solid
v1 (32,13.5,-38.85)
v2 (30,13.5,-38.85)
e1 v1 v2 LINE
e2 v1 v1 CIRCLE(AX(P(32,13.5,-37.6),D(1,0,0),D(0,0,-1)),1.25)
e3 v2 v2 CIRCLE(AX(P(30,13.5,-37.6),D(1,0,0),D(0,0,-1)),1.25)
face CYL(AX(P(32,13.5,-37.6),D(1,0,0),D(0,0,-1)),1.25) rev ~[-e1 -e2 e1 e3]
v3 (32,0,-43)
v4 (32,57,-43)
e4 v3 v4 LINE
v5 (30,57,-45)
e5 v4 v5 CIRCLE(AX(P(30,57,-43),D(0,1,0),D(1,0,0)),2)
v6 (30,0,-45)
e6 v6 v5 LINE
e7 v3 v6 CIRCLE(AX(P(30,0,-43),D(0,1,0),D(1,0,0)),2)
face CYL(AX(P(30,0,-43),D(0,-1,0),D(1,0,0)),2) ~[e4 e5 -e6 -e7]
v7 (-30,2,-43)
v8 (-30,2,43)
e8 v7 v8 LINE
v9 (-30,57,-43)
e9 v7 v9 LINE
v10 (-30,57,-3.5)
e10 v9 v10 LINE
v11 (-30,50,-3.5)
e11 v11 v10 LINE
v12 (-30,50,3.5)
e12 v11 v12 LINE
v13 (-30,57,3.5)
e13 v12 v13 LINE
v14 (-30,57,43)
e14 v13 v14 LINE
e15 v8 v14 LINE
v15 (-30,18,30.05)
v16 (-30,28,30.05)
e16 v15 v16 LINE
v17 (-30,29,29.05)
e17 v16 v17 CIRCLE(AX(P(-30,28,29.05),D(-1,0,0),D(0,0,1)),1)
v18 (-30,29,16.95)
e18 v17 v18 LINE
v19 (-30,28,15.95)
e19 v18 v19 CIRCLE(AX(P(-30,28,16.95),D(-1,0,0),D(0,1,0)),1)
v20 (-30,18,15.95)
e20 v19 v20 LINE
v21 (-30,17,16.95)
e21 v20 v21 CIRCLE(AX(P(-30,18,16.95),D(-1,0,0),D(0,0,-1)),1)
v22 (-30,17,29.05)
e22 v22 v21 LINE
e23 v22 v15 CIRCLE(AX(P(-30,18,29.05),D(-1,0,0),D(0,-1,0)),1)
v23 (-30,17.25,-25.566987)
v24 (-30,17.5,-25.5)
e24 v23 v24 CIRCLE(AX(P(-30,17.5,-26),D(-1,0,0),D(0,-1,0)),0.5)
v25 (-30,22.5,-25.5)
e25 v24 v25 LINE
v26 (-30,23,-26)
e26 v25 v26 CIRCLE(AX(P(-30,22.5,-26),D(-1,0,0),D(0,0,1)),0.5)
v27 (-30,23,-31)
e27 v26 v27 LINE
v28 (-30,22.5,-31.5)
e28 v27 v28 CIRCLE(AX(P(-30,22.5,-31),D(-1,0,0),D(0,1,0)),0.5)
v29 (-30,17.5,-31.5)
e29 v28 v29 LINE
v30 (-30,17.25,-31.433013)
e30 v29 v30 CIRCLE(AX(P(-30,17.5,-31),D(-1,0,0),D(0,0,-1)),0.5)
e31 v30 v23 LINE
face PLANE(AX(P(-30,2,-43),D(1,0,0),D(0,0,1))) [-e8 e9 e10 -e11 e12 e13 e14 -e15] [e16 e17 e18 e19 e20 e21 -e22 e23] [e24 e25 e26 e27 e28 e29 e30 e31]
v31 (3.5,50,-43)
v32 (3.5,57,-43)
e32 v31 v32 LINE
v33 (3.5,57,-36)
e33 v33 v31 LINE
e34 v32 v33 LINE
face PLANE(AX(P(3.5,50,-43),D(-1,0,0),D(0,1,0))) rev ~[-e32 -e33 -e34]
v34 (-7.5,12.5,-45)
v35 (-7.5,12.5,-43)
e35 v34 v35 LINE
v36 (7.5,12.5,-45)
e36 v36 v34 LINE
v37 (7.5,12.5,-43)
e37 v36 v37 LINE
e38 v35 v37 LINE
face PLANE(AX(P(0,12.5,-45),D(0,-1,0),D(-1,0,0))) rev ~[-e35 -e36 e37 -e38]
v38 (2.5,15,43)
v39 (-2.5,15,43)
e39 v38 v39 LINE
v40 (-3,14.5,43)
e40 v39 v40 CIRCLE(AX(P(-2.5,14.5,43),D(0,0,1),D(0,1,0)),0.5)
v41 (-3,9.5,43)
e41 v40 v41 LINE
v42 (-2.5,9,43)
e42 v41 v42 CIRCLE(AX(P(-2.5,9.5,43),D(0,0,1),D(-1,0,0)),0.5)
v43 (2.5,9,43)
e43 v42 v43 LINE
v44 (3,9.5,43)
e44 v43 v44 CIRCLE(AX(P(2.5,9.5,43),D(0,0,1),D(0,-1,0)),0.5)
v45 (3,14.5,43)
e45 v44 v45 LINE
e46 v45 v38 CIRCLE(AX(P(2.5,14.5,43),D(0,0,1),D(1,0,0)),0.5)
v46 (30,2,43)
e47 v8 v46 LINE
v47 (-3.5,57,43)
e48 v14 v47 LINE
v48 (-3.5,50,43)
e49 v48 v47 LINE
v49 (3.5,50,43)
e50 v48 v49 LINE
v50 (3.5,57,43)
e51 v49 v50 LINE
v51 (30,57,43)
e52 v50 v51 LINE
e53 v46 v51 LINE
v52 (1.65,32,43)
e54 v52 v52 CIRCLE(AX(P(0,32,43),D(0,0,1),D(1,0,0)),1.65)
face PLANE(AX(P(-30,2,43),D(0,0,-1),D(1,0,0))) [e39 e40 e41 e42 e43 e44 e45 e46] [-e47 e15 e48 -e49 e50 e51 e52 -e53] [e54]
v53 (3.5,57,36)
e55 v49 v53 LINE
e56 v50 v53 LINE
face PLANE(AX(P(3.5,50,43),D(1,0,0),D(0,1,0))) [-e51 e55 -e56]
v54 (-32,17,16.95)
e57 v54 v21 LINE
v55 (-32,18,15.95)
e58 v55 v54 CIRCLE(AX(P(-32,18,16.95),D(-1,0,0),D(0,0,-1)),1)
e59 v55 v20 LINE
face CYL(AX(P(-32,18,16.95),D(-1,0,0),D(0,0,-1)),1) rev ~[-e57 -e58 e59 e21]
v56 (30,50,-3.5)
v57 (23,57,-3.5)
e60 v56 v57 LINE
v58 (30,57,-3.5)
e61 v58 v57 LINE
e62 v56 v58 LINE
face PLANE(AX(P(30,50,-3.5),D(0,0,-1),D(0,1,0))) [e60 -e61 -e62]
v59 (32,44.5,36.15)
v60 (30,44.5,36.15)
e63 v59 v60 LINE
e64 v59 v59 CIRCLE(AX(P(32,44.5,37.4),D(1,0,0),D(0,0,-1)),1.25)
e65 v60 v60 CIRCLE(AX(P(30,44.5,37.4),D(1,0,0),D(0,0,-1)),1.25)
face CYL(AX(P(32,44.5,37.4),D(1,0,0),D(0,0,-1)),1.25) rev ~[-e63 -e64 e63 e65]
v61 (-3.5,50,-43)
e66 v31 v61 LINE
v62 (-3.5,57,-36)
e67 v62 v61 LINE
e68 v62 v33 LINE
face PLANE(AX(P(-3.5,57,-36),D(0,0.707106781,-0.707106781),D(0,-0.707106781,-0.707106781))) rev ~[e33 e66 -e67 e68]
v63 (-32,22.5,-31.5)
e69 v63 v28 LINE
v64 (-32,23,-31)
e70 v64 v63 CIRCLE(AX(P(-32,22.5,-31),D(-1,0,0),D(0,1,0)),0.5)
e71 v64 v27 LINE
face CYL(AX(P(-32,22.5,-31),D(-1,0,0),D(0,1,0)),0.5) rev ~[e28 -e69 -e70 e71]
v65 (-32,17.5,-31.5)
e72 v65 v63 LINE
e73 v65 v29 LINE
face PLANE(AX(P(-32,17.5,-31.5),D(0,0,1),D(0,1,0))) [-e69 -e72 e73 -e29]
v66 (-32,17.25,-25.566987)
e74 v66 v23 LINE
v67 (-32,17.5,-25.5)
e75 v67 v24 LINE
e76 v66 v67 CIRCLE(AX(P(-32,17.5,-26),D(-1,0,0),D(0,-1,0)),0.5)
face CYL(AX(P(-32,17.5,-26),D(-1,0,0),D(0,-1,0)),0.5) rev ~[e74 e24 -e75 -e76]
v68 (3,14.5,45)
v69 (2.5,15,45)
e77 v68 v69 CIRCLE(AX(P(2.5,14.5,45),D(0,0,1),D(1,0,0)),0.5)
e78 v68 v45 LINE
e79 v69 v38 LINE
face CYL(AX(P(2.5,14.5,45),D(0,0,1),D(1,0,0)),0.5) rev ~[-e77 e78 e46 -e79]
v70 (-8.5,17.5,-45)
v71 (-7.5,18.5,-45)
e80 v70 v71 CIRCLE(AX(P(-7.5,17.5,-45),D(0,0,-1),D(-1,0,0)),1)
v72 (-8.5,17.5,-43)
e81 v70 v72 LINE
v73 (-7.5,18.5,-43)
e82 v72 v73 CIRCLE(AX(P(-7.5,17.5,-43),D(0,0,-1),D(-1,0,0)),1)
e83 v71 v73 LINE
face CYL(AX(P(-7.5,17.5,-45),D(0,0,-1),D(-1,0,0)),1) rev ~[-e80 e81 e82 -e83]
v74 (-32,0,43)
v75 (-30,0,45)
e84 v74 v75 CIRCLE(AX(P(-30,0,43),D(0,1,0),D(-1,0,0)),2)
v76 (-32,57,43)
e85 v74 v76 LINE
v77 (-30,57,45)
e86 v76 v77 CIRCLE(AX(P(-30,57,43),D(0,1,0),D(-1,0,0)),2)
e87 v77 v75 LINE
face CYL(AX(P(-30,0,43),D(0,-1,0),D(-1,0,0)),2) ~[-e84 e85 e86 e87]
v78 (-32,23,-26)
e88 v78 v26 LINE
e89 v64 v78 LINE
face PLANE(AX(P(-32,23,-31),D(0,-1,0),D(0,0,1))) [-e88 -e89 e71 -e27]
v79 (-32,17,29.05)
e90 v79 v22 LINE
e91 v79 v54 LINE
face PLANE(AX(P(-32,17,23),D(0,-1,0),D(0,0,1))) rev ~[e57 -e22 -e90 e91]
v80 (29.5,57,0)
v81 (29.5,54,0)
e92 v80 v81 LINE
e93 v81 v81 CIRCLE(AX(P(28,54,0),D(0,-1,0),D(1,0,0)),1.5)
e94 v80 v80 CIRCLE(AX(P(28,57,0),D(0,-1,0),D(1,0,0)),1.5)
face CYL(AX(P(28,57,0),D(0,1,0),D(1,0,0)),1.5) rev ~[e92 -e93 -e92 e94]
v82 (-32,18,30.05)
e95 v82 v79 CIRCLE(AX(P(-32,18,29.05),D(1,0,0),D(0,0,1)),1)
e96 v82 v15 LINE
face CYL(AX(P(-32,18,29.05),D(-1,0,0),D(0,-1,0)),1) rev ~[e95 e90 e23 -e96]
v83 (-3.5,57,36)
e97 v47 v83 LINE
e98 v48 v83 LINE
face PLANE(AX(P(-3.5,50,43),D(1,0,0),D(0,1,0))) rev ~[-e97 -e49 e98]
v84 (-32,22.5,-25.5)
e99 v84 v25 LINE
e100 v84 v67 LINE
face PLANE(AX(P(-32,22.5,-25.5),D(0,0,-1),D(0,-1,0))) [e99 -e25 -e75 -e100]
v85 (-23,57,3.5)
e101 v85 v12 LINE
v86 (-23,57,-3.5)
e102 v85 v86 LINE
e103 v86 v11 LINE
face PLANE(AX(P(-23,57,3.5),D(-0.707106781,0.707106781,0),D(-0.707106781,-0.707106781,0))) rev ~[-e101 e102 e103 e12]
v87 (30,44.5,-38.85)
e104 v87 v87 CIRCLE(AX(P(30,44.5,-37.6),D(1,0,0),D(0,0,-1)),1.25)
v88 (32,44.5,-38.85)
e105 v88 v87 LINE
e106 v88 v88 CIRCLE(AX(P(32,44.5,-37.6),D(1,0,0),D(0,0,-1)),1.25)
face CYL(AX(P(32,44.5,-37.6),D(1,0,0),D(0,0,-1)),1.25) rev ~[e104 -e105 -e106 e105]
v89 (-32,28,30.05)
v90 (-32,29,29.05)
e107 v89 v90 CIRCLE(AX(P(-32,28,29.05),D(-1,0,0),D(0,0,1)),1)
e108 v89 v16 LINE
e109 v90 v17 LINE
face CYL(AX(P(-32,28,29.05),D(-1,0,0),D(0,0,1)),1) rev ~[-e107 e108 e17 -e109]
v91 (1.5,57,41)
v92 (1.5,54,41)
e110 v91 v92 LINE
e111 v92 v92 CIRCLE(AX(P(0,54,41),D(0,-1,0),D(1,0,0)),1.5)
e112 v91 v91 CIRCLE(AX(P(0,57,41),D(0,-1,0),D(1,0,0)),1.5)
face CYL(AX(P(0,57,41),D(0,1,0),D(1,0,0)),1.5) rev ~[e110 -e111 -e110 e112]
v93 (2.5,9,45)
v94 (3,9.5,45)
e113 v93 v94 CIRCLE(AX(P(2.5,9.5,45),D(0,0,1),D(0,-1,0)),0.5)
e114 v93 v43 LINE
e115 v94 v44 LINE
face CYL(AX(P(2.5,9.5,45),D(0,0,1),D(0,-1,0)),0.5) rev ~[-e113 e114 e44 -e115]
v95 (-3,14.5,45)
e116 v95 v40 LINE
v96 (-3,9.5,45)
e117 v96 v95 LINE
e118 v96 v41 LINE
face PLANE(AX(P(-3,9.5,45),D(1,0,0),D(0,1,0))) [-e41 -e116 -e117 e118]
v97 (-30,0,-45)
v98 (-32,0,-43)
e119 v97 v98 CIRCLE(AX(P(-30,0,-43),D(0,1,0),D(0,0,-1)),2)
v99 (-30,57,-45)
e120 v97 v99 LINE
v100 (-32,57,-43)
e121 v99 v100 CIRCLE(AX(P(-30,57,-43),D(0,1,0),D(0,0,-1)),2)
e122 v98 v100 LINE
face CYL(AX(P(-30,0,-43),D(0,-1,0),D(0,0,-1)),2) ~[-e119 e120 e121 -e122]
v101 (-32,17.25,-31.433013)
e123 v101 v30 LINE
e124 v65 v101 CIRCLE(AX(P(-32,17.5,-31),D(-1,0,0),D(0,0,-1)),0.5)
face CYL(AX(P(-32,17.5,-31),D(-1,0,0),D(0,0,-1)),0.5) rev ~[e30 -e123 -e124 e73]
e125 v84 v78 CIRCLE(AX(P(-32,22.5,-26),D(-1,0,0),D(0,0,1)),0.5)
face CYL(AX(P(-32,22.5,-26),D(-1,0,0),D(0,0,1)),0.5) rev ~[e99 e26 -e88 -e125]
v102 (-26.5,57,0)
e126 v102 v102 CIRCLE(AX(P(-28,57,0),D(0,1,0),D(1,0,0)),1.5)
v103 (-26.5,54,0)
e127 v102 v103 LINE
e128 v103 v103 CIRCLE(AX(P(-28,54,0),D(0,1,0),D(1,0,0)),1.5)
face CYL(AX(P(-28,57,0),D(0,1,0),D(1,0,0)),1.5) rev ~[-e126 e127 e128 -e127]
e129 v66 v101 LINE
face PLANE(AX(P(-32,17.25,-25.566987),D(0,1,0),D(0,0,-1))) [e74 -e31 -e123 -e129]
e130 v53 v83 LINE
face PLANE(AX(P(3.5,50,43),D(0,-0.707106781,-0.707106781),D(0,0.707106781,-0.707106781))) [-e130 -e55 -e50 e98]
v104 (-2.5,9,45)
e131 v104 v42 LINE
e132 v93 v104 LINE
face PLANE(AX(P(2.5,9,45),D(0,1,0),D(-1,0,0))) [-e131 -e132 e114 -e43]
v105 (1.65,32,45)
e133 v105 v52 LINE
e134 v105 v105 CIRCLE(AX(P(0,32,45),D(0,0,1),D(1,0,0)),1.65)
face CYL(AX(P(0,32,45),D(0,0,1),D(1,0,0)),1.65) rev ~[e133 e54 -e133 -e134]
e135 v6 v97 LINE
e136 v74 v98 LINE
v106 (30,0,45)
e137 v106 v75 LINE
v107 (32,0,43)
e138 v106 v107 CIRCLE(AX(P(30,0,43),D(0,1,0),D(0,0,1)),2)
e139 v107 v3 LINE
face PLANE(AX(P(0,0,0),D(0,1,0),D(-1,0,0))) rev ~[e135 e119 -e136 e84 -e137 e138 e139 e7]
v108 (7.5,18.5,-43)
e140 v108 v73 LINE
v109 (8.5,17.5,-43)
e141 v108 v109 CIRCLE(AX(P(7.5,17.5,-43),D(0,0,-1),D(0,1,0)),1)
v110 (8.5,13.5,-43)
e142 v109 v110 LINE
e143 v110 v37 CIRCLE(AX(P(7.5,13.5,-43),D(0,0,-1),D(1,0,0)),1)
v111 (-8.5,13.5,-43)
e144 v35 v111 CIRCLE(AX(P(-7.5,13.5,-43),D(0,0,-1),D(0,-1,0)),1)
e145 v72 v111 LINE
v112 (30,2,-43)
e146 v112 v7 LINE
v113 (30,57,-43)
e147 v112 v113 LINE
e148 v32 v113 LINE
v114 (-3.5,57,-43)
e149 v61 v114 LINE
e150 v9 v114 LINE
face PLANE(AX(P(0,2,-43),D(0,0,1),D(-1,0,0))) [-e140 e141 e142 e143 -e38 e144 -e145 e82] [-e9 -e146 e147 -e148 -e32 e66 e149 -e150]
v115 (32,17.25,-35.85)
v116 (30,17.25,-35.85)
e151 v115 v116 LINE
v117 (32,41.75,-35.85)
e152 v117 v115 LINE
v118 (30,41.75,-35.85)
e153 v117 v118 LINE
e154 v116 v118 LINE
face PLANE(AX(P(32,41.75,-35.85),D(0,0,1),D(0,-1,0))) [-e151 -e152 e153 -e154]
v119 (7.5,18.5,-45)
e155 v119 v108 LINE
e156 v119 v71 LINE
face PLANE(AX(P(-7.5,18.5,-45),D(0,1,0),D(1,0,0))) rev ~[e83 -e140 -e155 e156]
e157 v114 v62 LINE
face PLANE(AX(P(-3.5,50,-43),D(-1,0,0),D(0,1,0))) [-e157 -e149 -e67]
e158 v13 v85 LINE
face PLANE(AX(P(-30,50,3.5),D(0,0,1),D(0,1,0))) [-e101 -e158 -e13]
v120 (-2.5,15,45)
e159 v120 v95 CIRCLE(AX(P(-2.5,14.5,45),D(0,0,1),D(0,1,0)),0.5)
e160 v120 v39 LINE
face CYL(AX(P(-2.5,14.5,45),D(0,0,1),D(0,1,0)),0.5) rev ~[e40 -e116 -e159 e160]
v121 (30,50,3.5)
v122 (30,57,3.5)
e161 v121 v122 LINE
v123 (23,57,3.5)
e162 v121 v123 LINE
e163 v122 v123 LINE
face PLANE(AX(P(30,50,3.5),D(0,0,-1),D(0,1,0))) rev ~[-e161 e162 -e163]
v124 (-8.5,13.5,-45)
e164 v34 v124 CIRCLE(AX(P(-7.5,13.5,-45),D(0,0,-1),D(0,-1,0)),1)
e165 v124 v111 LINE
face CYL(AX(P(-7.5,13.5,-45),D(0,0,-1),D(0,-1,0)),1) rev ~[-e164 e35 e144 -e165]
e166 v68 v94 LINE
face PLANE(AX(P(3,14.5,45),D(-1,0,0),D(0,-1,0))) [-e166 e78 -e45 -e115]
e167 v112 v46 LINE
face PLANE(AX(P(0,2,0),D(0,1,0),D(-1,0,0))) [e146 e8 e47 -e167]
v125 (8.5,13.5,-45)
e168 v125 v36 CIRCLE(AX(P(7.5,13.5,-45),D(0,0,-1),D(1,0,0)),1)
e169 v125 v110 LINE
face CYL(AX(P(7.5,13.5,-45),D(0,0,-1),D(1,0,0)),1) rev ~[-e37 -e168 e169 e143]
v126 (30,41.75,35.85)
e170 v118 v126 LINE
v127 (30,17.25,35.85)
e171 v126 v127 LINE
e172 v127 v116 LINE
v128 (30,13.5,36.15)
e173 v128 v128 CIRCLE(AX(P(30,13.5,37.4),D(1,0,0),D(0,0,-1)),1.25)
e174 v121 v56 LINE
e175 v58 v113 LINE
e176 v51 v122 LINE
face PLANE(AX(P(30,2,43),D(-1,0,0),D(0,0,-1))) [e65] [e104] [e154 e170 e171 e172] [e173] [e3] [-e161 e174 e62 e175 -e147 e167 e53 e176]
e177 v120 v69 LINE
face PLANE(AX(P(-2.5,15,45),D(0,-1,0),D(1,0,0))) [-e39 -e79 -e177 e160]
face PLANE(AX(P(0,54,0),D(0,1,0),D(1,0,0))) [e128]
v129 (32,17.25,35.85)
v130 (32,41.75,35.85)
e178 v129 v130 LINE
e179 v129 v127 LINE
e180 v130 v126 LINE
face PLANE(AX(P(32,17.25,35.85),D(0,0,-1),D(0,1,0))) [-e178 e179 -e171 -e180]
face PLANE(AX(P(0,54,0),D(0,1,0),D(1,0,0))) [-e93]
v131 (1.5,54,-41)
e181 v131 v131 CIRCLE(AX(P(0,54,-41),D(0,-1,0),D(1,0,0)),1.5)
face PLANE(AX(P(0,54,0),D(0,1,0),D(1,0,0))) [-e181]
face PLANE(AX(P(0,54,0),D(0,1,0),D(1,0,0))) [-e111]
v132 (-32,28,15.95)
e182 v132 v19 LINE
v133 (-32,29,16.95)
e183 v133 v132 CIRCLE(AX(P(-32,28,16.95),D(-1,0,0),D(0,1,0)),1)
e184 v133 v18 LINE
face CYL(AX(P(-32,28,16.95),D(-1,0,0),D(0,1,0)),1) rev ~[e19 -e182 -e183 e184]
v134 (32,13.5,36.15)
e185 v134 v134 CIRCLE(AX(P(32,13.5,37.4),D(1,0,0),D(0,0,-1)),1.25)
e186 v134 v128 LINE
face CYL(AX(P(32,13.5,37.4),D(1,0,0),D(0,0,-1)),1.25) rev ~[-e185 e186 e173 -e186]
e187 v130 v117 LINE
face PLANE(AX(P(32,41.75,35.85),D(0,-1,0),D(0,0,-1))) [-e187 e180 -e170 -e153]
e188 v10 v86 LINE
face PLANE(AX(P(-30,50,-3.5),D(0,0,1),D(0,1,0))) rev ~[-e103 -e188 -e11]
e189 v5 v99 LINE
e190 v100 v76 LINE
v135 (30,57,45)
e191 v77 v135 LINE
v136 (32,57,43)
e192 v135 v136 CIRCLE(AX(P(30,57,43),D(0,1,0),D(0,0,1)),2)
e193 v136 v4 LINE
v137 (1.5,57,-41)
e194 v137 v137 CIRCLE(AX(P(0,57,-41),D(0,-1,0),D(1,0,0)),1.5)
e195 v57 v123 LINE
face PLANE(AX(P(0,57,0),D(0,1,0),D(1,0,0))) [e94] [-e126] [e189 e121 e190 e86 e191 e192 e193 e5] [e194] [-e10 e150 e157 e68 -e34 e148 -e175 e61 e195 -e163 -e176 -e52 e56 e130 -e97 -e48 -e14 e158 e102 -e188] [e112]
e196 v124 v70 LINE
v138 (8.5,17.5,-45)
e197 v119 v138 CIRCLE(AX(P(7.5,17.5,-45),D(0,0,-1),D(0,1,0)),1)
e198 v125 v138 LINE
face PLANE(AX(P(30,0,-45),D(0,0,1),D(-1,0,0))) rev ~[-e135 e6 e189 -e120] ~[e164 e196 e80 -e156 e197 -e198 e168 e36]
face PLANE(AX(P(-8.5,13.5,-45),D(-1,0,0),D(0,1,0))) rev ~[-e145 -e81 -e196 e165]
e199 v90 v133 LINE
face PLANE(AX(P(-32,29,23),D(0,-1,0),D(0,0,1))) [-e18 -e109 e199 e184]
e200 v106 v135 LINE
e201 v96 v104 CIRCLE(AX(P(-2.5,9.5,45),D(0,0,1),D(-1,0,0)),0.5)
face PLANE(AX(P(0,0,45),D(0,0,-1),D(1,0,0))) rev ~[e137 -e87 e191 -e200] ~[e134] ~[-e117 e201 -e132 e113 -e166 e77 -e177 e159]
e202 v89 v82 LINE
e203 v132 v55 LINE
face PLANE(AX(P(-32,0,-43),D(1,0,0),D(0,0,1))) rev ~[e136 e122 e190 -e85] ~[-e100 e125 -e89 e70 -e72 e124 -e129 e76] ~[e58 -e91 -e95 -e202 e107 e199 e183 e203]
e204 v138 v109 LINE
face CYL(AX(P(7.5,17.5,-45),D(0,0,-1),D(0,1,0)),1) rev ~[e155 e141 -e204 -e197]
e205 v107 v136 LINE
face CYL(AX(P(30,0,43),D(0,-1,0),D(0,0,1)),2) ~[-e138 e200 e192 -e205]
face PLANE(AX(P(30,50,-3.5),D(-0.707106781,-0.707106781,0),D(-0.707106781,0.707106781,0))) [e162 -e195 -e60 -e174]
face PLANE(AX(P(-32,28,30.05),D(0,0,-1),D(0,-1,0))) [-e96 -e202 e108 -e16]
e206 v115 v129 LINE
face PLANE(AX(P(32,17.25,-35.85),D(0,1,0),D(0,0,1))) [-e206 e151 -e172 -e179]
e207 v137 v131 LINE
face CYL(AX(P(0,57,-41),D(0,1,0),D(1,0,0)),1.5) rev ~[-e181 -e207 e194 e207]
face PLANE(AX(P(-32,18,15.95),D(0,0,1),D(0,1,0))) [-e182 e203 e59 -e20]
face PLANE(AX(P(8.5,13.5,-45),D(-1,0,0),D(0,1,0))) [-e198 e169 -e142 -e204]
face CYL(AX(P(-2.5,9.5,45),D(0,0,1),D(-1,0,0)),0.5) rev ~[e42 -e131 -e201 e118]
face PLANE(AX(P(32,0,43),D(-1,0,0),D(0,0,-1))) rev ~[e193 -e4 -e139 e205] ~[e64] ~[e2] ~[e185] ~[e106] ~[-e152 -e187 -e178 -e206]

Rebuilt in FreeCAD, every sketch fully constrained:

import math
import FreeCAD as App
import Part
import Sketcher

V = App.Vector
Q = App.Units.Quantity

doc = App.newDocument("Part")
body = doc.addObject("PartDesign::Body", "Body")

# Sketch on XZ plane
sketch1 = body.newObject("Sketcher::SketchObject", "Sketch")
sketch1.AttachmentSupport = (doc.getObject("XZ_Plane"), [""])
sketch1.MapMode = "FlatFace"
sketch1.addGeometry(Part.ArcOfCircle(Part.Circle(V(30, 43, 0), V(0, 0, 1), 2), math.radians(0), math.radians(90)), False)
sketch1.addGeometry(Part.LineSegment(V(32, 43, 0), V(32, -43, 0)), False)
sketch1.addGeometry(Part.ArcOfCircle(Part.Circle(V(30, -43, 0), V(0, 0, 1), 2), math.radians(-90), math.radians(0)), False)
sketch1.addGeometry(Part.LineSegment(V(30, -45, 0), V(-30, -45, 0)), False)
sketch1.addGeometry(Part.ArcOfCircle(Part.Circle(V(-30, -43, 0), V(0, 0, 1), 2), math.radians(180), math.radians(270)), False)
sketch1.addGeometry(Part.LineSegment(V(-32, -43, 0), V(-32, 43, 0)), False)
sketch1.addGeometry(Part.ArcOfCircle(Part.Circle(V(-30, 43, 0), V(0, 0, 1), 2), math.radians(90), math.radians(180)), False)
sketch1.addGeometry(Part.LineSegment(V(-30, 45, 0), V(30, 45, 0)), False)
sketch1.addConstraint(Sketcher.Constraint("Tangent", 0, 1, 1, 1))
sketch1.addConstraint(Sketcher.Constraint("Tangent", 1, 2, 2, 2))
sketch1.addConstraint(Sketcher.Constraint("Tangent", 2, 1, 3, 1))
sketch1.addConstraint(Sketcher.Constraint("Tangent", 3, 2, 4, 2))
sketch1.addConstraint(Sketcher.Constraint("Tangent", 4, 1, 5, 1))
sketch1.addConstraint(Sketcher.Constraint("Tangent", 5, 2, 6, 2))
sketch1.addConstraint(Sketcher.Constraint("Tangent", 6, 1, 7, 1))
sketch1.addConstraint(Sketcher.Constraint("Tangent", 7, 2, 0, 2))
sketch1.addConstraint(Sketcher.Constraint("Vertical", 1))
sketch1.addConstraint(Sketcher.Constraint("Horizontal", 3))
sketch1.addConstraint(Sketcher.Constraint("Vertical", 5))
sketch1.addConstraint(Sketcher.Constraint("Horizontal", 7))
sketch1.addConstraint(Sketcher.Constraint("Equal", 0, 2))
sketch1.addConstraint(Sketcher.Constraint("Equal", 2, 4))
sketch1.addConstraint(Sketcher.Constraint("Equal", 4, 6))
sketch1.addConstraint(Sketcher.Constraint("Symmetric", 0, 3, 4, 3, -1, 1))
sketch1.addConstraint(Sketcher.Constraint("Radius", 0, Q("2 mm")))
sketch1.addConstraint(Sketcher.Constraint("DistanceX", 3, 2, 3, 1, Q("60 mm")))
sketch1.addConstraint(Sketcher.Constraint("DistanceY", 1, 2, 1, 1, Q("86 mm")))
pad1 = body.newObject("PartDesign::Pad", "Pad")
pad1.Profile = sketch1
pad1.Length = 2
pad1.Reversed = True

# Sketch on XZ plane
sketch2 = body.newObject("Sketcher::SketchObject", "Sketch001")
sketch2.AttachmentSupport = (doc.getObject("XZ_Plane"), [""])
sketch2.MapMode = "FlatFace"
sketch2.AttachmentOffset = App.Placement(V(0, 0, -2), App.Rotation())
sketch2.addGeometry(Part.LineSegment(V(32, 43, 0), V(32, -43, 0)), False)
sketch2.addGeometry(Part.ArcOfCircle(Part.Circle(V(30, -43, 0), V(0, 0, 1), 2), math.radians(-90), math.radians(0)), False)
sketch2.addGeometry(Part.LineSegment(V(30, -45, 0), V(-30, -45, 0)), False)
sketch2.addGeometry(Part.ArcOfCircle(Part.Circle(V(-30, -43, 0), V(0, 0, 1), 2), math.radians(180), math.radians(270)), False)
sketch2.addGeometry(Part.LineSegment(V(-32, -43, 0), V(-32, 43, 0)), False)
sketch2.addGeometry(Part.ArcOfCircle(Part.Circle(V(-30, 43, 0), V(0, 0, 1), 2), math.radians(90), math.radians(180)), False)
sketch2.addGeometry(Part.LineSegment(V(-30, 45, 0), V(30, 45, 0)), False)
sketch2.addGeometry(Part.ArcOfCircle(Part.Circle(V(30, 43, 0), V(0, 0, 1), 2), math.radians(0), math.radians(90)), False)
sketch2.addGeometry(Part.LineSegment(V(30, 43, 0), V(-30, 43, 0)), False)
sketch2.addGeometry(Part.LineSegment(V(-30, 43, 0), V(-30, -43, 0)), False)
sketch2.addGeometry(Part.LineSegment(V(-30, -43, 0), V(30, -43, 0)), False)
sketch2.addGeometry(Part.LineSegment(V(30, -43, 0), V(30, 43, 0)), False)
sketch2.addConstraint(Sketcher.Constraint("Tangent", 0, 2, 1, 2))
sketch2.addConstraint(Sketcher.Constraint("Tangent", 1, 1, 2, 1))
sketch2.addConstraint(Sketcher.Constraint("Tangent", 2, 2, 3, 2))
sketch2.addConstraint(Sketcher.Constraint("Tangent", 3, 1, 4, 1))
sketch2.addConstraint(Sketcher.Constraint("Tangent", 4, 2, 5, 2))
sketch2.addConstraint(Sketcher.Constraint("Tangent", 5, 1, 6, 1))
sketch2.addConstraint(Sketcher.Constraint("Tangent", 6, 2, 7, 2))
sketch2.addConstraint(Sketcher.Constraint("Tangent", 7, 1, 0, 1))
sketch2.addConstraint(Sketcher.Constraint("Coincident", 8, 2, 9, 1))
sketch2.addConstraint(Sketcher.Constraint("Coincident", 9, 2, 10, 1))
sketch2.addConstraint(Sketcher.Constraint("Coincident", 10, 2, 11, 1))
sketch2.addConstraint(Sketcher.Constraint("Coincident", 11, 2, 8, 1))
sketch2.addConstraint(Sketcher.Constraint("Vertical", 0))
sketch2.addConstraint(Sketcher.Constraint("Horizontal", 2))
sketch2.addConstraint(Sketcher.Constraint("Vertical", 4))
sketch2.addConstraint(Sketcher.Constraint("Horizontal", 6))
sketch2.addConstraint(Sketcher.Constraint("Horizontal", 8))
sketch2.addConstraint(Sketcher.Constraint("Vertical", 9))
sketch2.addConstraint(Sketcher.Constraint("Horizontal", 10))
sketch2.addConstraint(Sketcher.Constraint("Vertical", 11))
sketch2.addConstraint(Sketcher.Constraint("Coincident", 8, 2, 5, 3))
sketch2.addConstraint(Sketcher.Constraint("Coincident", 9, 2, 3, 3))
sketch2.addConstraint(Sketcher.Constraint("Coincident", 10, 2, 1, 3))
sketch2.addConstraint(Sketcher.Constraint("Equal", 5, 7))
sketch2.addConstraint(Sketcher.Constraint("Symmetric", 1, 3, 5, 3, -1, 1))
sketch2.addConstraint(Sketcher.Constraint("Radius", 1, Q("2 mm")))
sketch2.addConstraint(Sketcher.Constraint("DistanceX", 2, 2, 2, 1, Q("60 mm")))
sketch2.addConstraint(Sketcher.Constraint("DistanceY", 0, 2, 0, 1, Q("86 mm")))
pad2 = body.newObject("PartDesign::Pad", "Pad001")
pad2.Profile = sketch2
pad2.Length = 55
pad2.Reversed = True

# Sketch on YZ plane
sketch3 = body.newObject("Sketcher::SketchObject", "Sketch002")
sketch3.AttachmentSupport = (doc.getObject("YZ_Plane"), [""])
sketch3.MapMode = "FlatFace"
sketch3.AttachmentOffset = App.Placement(V(0, 0, 32), App.Rotation())
sketch3.addGeometry(Part.Circle(V(44.5, 37.4, 0), V(0, 0, 1), 1.2), False)
sketch3.addGeometry(Part.Circle(V(13.5, 37.4, 0), V(0, 0, 1), 1.2), False)
sketch3.addGeometry(Part.Circle(V(13.5, -37.6, 0), V(0, 0, 1), 1.2), False)
sketch3.addGeometry(Part.Circle(V(44.5, -37.6, 0), V(0, 0, 1), 1.2), False)
sketch3.addGeometry(Part.LineSegment(V(17.2, 35.9, 0), V(17.2, -35.9, 0)), False)
sketch3.addGeometry(Part.LineSegment(V(17.2, -35.9, 0), V(41.8, -35.9, 0)), False)
sketch3.addGeometry(Part.LineSegment(V(41.8, -35.9, 0), V(41.8, 35.9, 0)), False)
sketch3.addGeometry(Part.LineSegment(V(41.8, 35.9, 0), V(17.2, 35.9, 0)), False)
sketch3.addConstraint(Sketcher.Constraint("Coincident", 4, 2, 5, 1))
sketch3.addConstraint(Sketcher.Constraint("Coincident", 5, 2, 6, 1))
sketch3.addConstraint(Sketcher.Constraint("Coincident", 6, 2, 7, 1))
sketch3.addConstraint(Sketcher.Constraint("Coincident", 7, 2, 4, 1))
sketch3.addConstraint(Sketcher.Constraint("Vertical", 4))
sketch3.addConstraint(Sketcher.Constraint("Horizontal", 5))
sketch3.addConstraint(Sketcher.Constraint("Vertical", 6))
sketch3.addConstraint(Sketcher.Constraint("Horizontal", 7))
sketch3.addConstraint(Sketcher.Constraint("Equal", 0, 1))
sketch3.addConstraint(Sketcher.Constraint("Equal", 1, 2))
sketch3.addConstraint(Sketcher.Constraint("Equal", 2, 3))
sketch3.addConstraint(Sketcher.Constraint("Horizontal", 0, 3, 1, 3))
sketch3.addConstraint(Sketcher.Constraint("Horizontal", 2, 3, 3, 3))
sketch3.addConstraint(Sketcher.Constraint("Vertical", 1, 3, 2, 3))
sketch3.addConstraint(Sketcher.Constraint("Vertical", 0, 3, 3, 3))
sketch3.addConstraint(Sketcher.Constraint("Diameter", 0, Q("2.5 mm")))
sketch3.addConstraint(Sketcher.Constraint("DistanceX", 5, 1, 5, 2, Q("24.5 mm")))
sketch3.addConstraint(Sketcher.Constraint("DistanceY", 4, 2, 4, 1, Q("71.7 mm")))
sketch3.addConstraint(Sketcher.Constraint("DistanceX", 1, 3, 0, 3, Q("31 mm")))
sketch3.addConstraint(Sketcher.Constraint("DistanceY", 2, 3, 1, 3, Q("75 mm")))
sketch3.addConstraint(Sketcher.Constraint("DistanceX", -1, 1, 0, 3, Q("44.5 mm")))
sketch3.addConstraint(Sketcher.Constraint("DistanceY", -1, 1, 0, 3, Q("37.4 mm")))
sketch3.addConstraint(Sketcher.Constraint("DistanceX", -1, 1, 4, 2, Q("17.25 mm")))
sketch3.addConstraint(Sketcher.Constraint("DistanceY", 4, 2, -1, 1, Q("35.85 mm")))
pocket1 = body.newObject("PartDesign::Pocket", "Pocket")
pocket1.Profile = sketch3
pocket1.Length = 10

# Sketch on XY plane
sketch4 = body.newObject("Sketcher::SketchObject", "Sketch003")
sketch4.AttachmentSupport = (doc.getObject("XY_Plane"), [""])
sketch4.MapMode = "FlatFace"
sketch4.AttachmentOffset = App.Placement(V(0, 0, -45), App.Rotation())
sketch4.addGeometry(Part.LineSegment(V(-7.5, 18.5, 0), V(7.5, 18.5, 0)), False)
sketch4.addGeometry(Part.ArcOfCircle(Part.Circle(V(7.5, 17.5, 0), V(0, 0, 1), 1), math.radians(0), math.radians(90)), False)
sketch4.addGeometry(Part.LineSegment(V(8.5, 17.5, 0), V(8.5, 13.5, 0)), False)
sketch4.addGeometry(Part.ArcOfCircle(Part.Circle(V(7.5, 13.5, 0), V(0, 0, 1), 1), math.radians(-90), math.radians(0)), False)
sketch4.addGeometry(Part.LineSegment(V(7.5, 12.5, 0), V(-7.5, 12.5, 0)), False)
sketch4.addGeometry(Part.ArcOfCircle(Part.Circle(V(-7.5, 13.5, 0), V(0, 0, 1), 1), math.radians(180), math.radians(270)), False)
sketch4.addGeometry(Part.LineSegment(V(-8.5, 13.5, 0), V(-8.5, 17.5, 0)), False)
sketch4.addGeometry(Part.ArcOfCircle(Part.Circle(V(-7.5, 17.5, 0), V(0, 0, 1), 1), math.radians(90), math.radians(180)), False)
sketch4.addConstraint(Sketcher.Constraint("Tangent", 0, 2, 1, 2))
sketch4.addConstraint(Sketcher.Constraint("Tangent", 1, 1, 2, 1))
sketch4.addConstraint(Sketcher.Constraint("Tangent", 2, 2, 3, 2))
sketch4.addConstraint(Sketcher.Constraint("Tangent", 3, 1, 4, 1))
sketch4.addConstraint(Sketcher.Constraint("Tangent", 4, 2, 5, 2))
sketch4.addConstraint(Sketcher.Constraint("Tangent", 5, 1, 6, 1))
sketch4.addConstraint(Sketcher.Constraint("Tangent", 6, 2, 7, 2))
sketch4.addConstraint(Sketcher.Constraint("Tangent", 7, 1, 0, 1))
sketch4.addConstraint(Sketcher.Constraint("Horizontal", 0))
sketch4.addConstraint(Sketcher.Constraint("Vertical", 2))
sketch4.addConstraint(Sketcher.Constraint("Horizontal", 4))
sketch4.addConstraint(Sketcher.Constraint("Vertical", 6))
sketch4.addConstraint(Sketcher.Constraint("Equal", 1, 3))
sketch4.addConstraint(Sketcher.Constraint("Equal", 3, 5))
sketch4.addConstraint(Sketcher.Constraint("Equal", 5, 7))
sketch4.addConstraint(Sketcher.Constraint("Radius", 1, Q("1 mm")))
sketch4.addConstraint(Sketcher.Constraint("DistanceY", 3, 1, 0, 2, Q("6 mm")))
sketch4.addConstraint(Sketcher.Constraint("DistanceX", -1, 1, 1, 1, Q("8.5 mm")))
sketch4.addConstraint(Sketcher.Constraint("DistanceY", -1, 1, 3, 1, Q("12.5 mm")))
sketch4.addConstraint(Sketcher.Constraint("DistanceX", 5, 1, -1, 1, Q("8.5 mm")))
pocket2 = body.newObject("PartDesign::Pocket", "Pocket001")
pocket2.Profile = sketch4
pocket2.Length = 10
pocket2.Reversed = True

# Sketch on YZ plane
sketch5 = body.newObject("Sketcher::SketchObject", "Sketch004")
sketch5.AttachmentSupport = (doc.getObject("YZ_Plane"), [""])
sketch5.MapMode = "FlatFace"
sketch5.AttachmentOffset = App.Placement(V(0, 0, -32), App.Rotation())
sketch5.addGeometry(Part.ArcOfCircle(Part.Circle(V(18, 29.05, 0), V(0, 0, 1), 1), math.radians(90), math.radians(180)), False)
sketch5.addGeometry(Part.LineSegment(V(18, 30.05, 0), V(28, 30.05, 0)), False)
sketch5.addGeometry(Part.ArcOfCircle(Part.Circle(V(28, 29.05, 0), V(0, 0, 1), 1), math.radians(0), math.radians(90)), False)
sketch5.addGeometry(Part.LineSegment(V(29, 29.05, 0), V(29, 16.95, 0)), False)
sketch5.addGeometry(Part.ArcOfCircle(Part.Circle(V(28, 16.95, 0), V(0, 0, 1), 1), math.radians(-90), math.radians(0)), False)
sketch5.addGeometry(Part.LineSegment(V(28, 15.95, 0), V(18, 15.95, 0)), False)
sketch5.addGeometry(Part.ArcOfCircle(Part.Circle(V(18, 16.95, 0), V(0, 0, 1), 1), math.radians(180), math.radians(270)), False)
sketch5.addGeometry(Part.LineSegment(V(17, 16.95, 0), V(17, 29.05, 0)), False)
sketch5.addGeometry(Part.LineSegment(V(17.25, -31.43, 0), V(17.25, -25.57, 0)), False)
sketch5.addGeometry(Part.ArcOfCircle(Part.Circle(V(17.5, -26, 0), V(0, 0, 1), 0.5), math.radians(90), math.radians(120)), False)
sketch5.addGeometry(Part.LineSegment(V(17.5, -25.5, 0), V(22.5, -25.5, 0)), False)
sketch5.addGeometry(Part.ArcOfCircle(Part.Circle(V(22.5, -26, 0), V(0, 0, 1), 0.5), math.radians(0), math.radians(90)), False)
sketch5.addGeometry(Part.LineSegment(V(23, -26, 0), V(23, -31, 0)), False)
sketch5.addGeometry(Part.ArcOfCircle(Part.Circle(V(22.5, -31, 0), V(0, 0, 1), 0.5), math.radians(-90), math.radians(0)), False)
sketch5.addGeometry(Part.LineSegment(V(22.5, -31.5, 0), V(17.5, -31.5, 0)), False)
sketch5.addGeometry(Part.ArcOfCircle(Part.Circle(V(17.5, -31, 0), V(0, 0, 1), 0.5), math.radians(-120), math.radians(-90)), False)
sketch5.addConstraint(Sketcher.Constraint("Tangent", 0, 1, 1, 1))
sketch5.addConstraint(Sketcher.Constraint("Tangent", 1, 2, 2, 2))
sketch5.addConstraint(Sketcher.Constraint("Tangent", 2, 1, 3, 1))
sketch5.addConstraint(Sketcher.Constraint("Tangent", 3, 2, 4, 2))
sketch5.addConstraint(Sketcher.Constraint("Tangent", 4, 1, 5, 1))
sketch5.addConstraint(Sketcher.Constraint("Tangent", 5, 2, 6, 2))
sketch5.addConstraint(Sketcher.Constraint("Tangent", 6, 1, 7, 1))
sketch5.addConstraint(Sketcher.Constraint("Tangent", 7, 2, 0, 2))
sketch5.addConstraint(Sketcher.Constraint("Coincident", 8, 2, 9, 2))
sketch5.addConstraint(Sketcher.Constraint("Tangent", 9, 1, 10, 1))
sketch5.addConstraint(Sketcher.Constraint("Tangent", 10, 2, 11, 2))
sketch5.addConstraint(Sketcher.Constraint("Tangent", 11, 1, 12, 1))
sketch5.addConstraint(Sketcher.Constraint("Tangent", 12, 2, 13, 2))
sketch5.addConstraint(Sketcher.Constraint("Tangent", 13, 1, 14, 1))
sketch5.addConstraint(Sketcher.Constraint("Tangent", 14, 2, 15, 2))
sketch5.addConstraint(Sketcher.Constraint("Coincident", 15, 1, 8, 1))
sketch5.addConstraint(Sketcher.Constraint("Horizontal", 1))
sketch5.addConstraint(Sketcher.Constraint("Vertical", 3))
sketch5.addConstraint(Sketcher.Constraint("Horizontal", 5))
sketch5.addConstraint(Sketcher.Constraint("Vertical", 7))
sketch5.addConstraint(Sketcher.Constraint("Vertical", 8))
sketch5.addConstraint(Sketcher.Constraint("Horizontal", 10))
sketch5.addConstraint(Sketcher.Constraint("Vertical", 12))
sketch5.addConstraint(Sketcher.Constraint("Horizontal", 14))
sketch5.addConstraint(Sketcher.Constraint("Equal", 0, 2))
sketch5.addConstraint(Sketcher.Constraint("Equal", 2, 4))
sketch5.addConstraint(Sketcher.Constraint("Equal", 4, 6))
sketch5.addConstraint(Sketcher.Constraint("Equal", 9, 11))
sketch5.addConstraint(Sketcher.Constraint("Equal", 11, 13))
sketch5.addConstraint(Sketcher.Constraint("Equal", 13, 15))
sketch5.addConstraint(Sketcher.Constraint("Vertical", 9, 3, 15, 3))
sketch5.addConstraint(Sketcher.Constraint("Equal", 14, 12))
sketch5.addConstraint(Sketcher.Constraint("Radius", 0, Q("1 mm")))
sketch5.addConstraint(Sketcher.Constraint("Radius", 9, Q("0.5 mm")))
sketch5.addConstraint(Sketcher.Constraint("DistanceX", 6, 1, 3, 2, Q("12 mm")))
sketch5.addConstraint(Sketcher.Constraint("DistanceX", 9, 3, 6, 3, Q("0.5 mm")))
sketch5.addConstraint(Sketcher.Constraint("DistanceX", 10, 1, 10, 2, Q("5 mm")))
sketch5.addConstraint(Sketcher.Constraint("DistanceY", 3, 2, 3, 1, Q("12.1 mm")))
sketch5.addConstraint(Sketcher.Constraint("DistanceX", -1, 1, 0, 3, Q("18 mm")))
sketch5.addConstraint(Sketcher.Constraint("DistanceY", 9, 3, -1, 1, Q("26 mm")))
sketch5.addConstraint(Sketcher.Constraint("DistanceY", 8, 1, 8, 2, Q("5.866 mm")))
sketch5.addConstraint(Sketcher.Constraint("DistanceY", -1, 1, 0, 3, Q("29.05 mm")))
pocket3 = body.newObject("PartDesign::Pocket", "Pocket002")
pocket3.Profile = sketch5
pocket3.Length = 10
pocket3.Reversed = True

# Sketch on YZ plane
sketch6 = body.newObject("Sketcher::SketchObject", "Sketch005")
sketch6.AttachmentSupport = (doc.getObject("YZ_Plane"), [""])
sketch6.MapMode = "FlatFace"
sketch6.AttachmentOffset = App.Placement(V(0, 0, -30), App.Rotation())
sketch6.addGeometry(Part.LineSegment(V(57, 4, 0), V(50, 4, 0)), False)
sketch6.addGeometry(Part.LineSegment(V(50, 4, 0), V(50, -4, 0)), False)
sketch6.addGeometry(Part.LineSegment(V(50, -4, 0), V(57, -4, 0)), False)
sketch6.addGeometry(Part.LineSegment(V(57, -4, 0), V(57, 4, 0)), False)
sketch6.addConstraint(Sketcher.Constraint("Coincident", 0, 2, 1, 1))
sketch6.addConstraint(Sketcher.Constraint("Coincident", 1, 2, 2, 1))
sketch6.addConstraint(Sketcher.Constraint("Coincident", 2, 2, 3, 1))
sketch6.addConstraint(Sketcher.Constraint("Coincident", 3, 2, 0, 1))
sketch6.addConstraint(Sketcher.Constraint("Horizontal", 0))
sketch6.addConstraint(Sketcher.Constraint("Vertical", 1))
sketch6.addConstraint(Sketcher.Constraint("Horizontal", 2))
sketch6.addConstraint(Sketcher.Constraint("Vertical", 3))
sketch6.addConstraint(Sketcher.Constraint("Equal", 2, 1))
sketch6.addConstraint(Sketcher.Constraint("DistanceX", 0, 2, 0, 1, Q("7 mm")))
sketch6.addConstraint(Sketcher.Constraint("DistanceY", -1, 1, 0, 2, Q("3.5 mm")))
sketch6.addConstraint(Sketcher.Constraint("DistanceX", -1, 1, 0, 2, Q("50 mm")))
pad3 = body.newObject("PartDesign::Pad", "Pad002")
pad3.Profile = sketch6
pad3.Length = 7

# Sketch on XY plane
sketch7 = body.newObject("Sketcher::SketchObject", "Sketch006")
sketch7.AttachmentSupport = (doc.getObject("XY_Plane"), [""])
sketch7.MapMode = "FlatFace"
sketch7.AttachmentOffset = App.Placement(V(0, 0, 3.5), App.Rotation())
sketch7.addGeometry(Part.LineSegment(V(-23, 50, 0), V(-23, 57, 0)), False)
sketch7.addGeometry(Part.LineSegment(V(-23, 57, 0), V(-30, 50, 0)), False)
sketch7.addGeometry(Part.LineSegment(V(-30, 50, 0), V(-23, 50, 0)), False)
sketch7.addConstraint(Sketcher.Constraint("Coincident", 0, 2, 1, 1))
sketch7.addConstraint(Sketcher.Constraint("Coincident", 1, 2, 2, 1))
sketch7.addConstraint(Sketcher.Constraint("Coincident", 2, 2, 0, 1))
sketch7.addConstraint(Sketcher.Constraint("Vertical", 0))
sketch7.addConstraint(Sketcher.Constraint("Horizontal", 2))
sketch7.addConstraint(Sketcher.Constraint("Equal", 2, 0))
sketch7.addConstraint(Sketcher.Constraint("DistanceX", 2, 1, 2, 2, Q("7 mm")))
sketch7.addConstraint(Sketcher.Constraint("DistanceX", 0, 2, -1, 1, Q("23 mm")))
sketch7.addConstraint(Sketcher.Constraint("DistanceY", -1, 1, 0, 2, Q("57 mm")))
pocket4 = body.newObject("PartDesign::Pocket", "Pocket003")
pocket4.Profile = sketch7
pocket4.Length = 7

# Sketch on XZ plane
sketch8 = body.newObject("Sketcher::SketchObject", "Sketch007")
sketch8.AttachmentSupport = (doc.getObject("XZ_Plane"), [""])
sketch8.MapMode = "FlatFace"
sketch8.AttachmentOffset = App.Placement(V(0, 0, -57), App.Rotation())
sketch8.addGeometry(Part.Circle(V(-28, 0, 0), V(0, 0, 1), 1.5), False)
sketch8.addConstraint(Sketcher.Constraint("PointOnObject", 0, 3, -1))
sketch8.addConstraint(Sketcher.Constraint("Diameter", 0, Q("3 mm")))
sketch8.addConstraint(Sketcher.Constraint("DistanceX", 0, 3, -1, 1, Q("28 mm")))
pocket5 = body.newObject("PartDesign::Pocket", "Pocket004")
pocket5.Profile = sketch8
pocket5.Length = 3
pocket5.Reversed = True

# Sketch on XY plane
sketch9 = body.newObject("Sketcher::SketchObject", "Sketch008")
sketch9.AttachmentSupport = (doc.getObject("XY_Plane"), [""])
sketch9.MapMode = "FlatFace"
sketch9.AttachmentOffset = App.Placement(V(0, 0, -43), App.Rotation())
sketch9.addGeometry(Part.LineSegment(V(-4, 57, 0), V(-4, 50, 0)), False)
sketch9.addGeometry(Part.LineSegment(V(-4, 50, 0), V(4, 50, 0)), False)
sketch9.addGeometry(Part.LineSegment(V(4, 50, 0), V(4, 57, 0)), False)
sketch9.addGeometry(Part.LineSegment(V(4, 57, 0), V(-4, 57, 0)), False)
sketch9.addConstraint(Sketcher.Constraint("Coincident", 0, 2, 1, 1))
sketch9.addConstraint(Sketcher.Constraint("Coincident", 1, 2, 2, 1))
sketch9.addConstraint(Sketcher.Constraint("Coincident", 2, 2, 3, 1))
sketch9.addConstraint(Sketcher.Constraint("Coincident", 3, 2, 0, 1))
sketch9.addConstraint(Sketcher.Constraint("Vertical", 0))
sketch9.addConstraint(Sketcher.Constraint("Horizontal", 1))
sketch9.addConstraint(Sketcher.Constraint("Vertical", 2))
sketch9.addConstraint(Sketcher.Constraint("Horizontal", 3))
sketch9.addConstraint(Sketcher.Constraint("Equal", 3, 0))
sketch9.addConstraint(Sketcher.Constraint("DistanceX", 1, 1, 1, 2, Q("7 mm")))
sketch9.addConstraint(Sketcher.Constraint("DistanceX", 0, 2, -1, 1, Q("3.5 mm")))
sketch9.addConstraint(Sketcher.Constraint("DistanceY", -1, 1, 0, 2, Q("50 mm")))
pad4 = body.newObject("PartDesign::Pad", "Pad003")
pad4.Profile = sketch9
pad4.Length = 7

# Sketch on YZ plane
sketch10 = body.newObject("Sketcher::SketchObject", "Sketch009")
sketch10.AttachmentSupport = (doc.getObject("YZ_Plane"), [""])
sketch10.MapMode = "FlatFace"
sketch10.AttachmentOffset = App.Placement(V(0, 0, -3.5), App.Rotation())
sketch10.addGeometry(Part.LineSegment(V(50, -36, 0), V(57, -36, 0)), False)
sketch10.addGeometry(Part.LineSegment(V(57, -36, 0), V(50, -43, 0)), False)
sketch10.addGeometry(Part.LineSegment(V(50, -43, 0), V(50, -36, 0)), False)
sketch10.addConstraint(Sketcher.Constraint("Coincident", 0, 2, 1, 1))
sketch10.addConstraint(Sketcher.Constraint("Coincident", 1, 2, 2, 1))
sketch10.addConstraint(Sketcher.Constraint("Coincident", 2, 2, 0, 1))
sketch10.addConstraint(Sketcher.Constraint("Horizontal", 0))
sketch10.addConstraint(Sketcher.Constraint("Vertical", 2))
sketch10.addConstraint(Sketcher.Constraint("Equal", 0, 2))
sketch10.addConstraint(Sketcher.Constraint("DistanceX", 0, 1, 0, 2, Q("7 mm")))
sketch10.addConstraint(Sketcher.Constraint("DistanceX", -1, 1, 0, 2, Q("57 mm")))
sketch10.addConstraint(Sketcher.Constraint("DistanceY", 0, 2, -1, 1, Q("36 mm")))
pocket6 = body.newObject("PartDesign::Pocket", "Pocket005")
pocket6.Profile = sketch10
pocket6.Length = 7
pocket6.Reversed = True

# Sketch on XZ plane
sketch11 = body.newObject("Sketcher::SketchObject", "Sketch010")
sketch11.AttachmentSupport = (doc.getObject("XZ_Plane"), [""])
sketch11.MapMode = "FlatFace"
sketch11.AttachmentOffset = App.Placement(V(0, 0, -57), App.Rotation())
sketch11.addGeometry(Part.Circle(V(0, -41, 0), V(0, 0, 1), 1.5), False)
sketch11.addConstraint(Sketcher.Constraint("PointOnObject", 0, 3, -2))
sketch11.addConstraint(Sketcher.Constraint("Diameter", 0, Q("3 mm")))
sketch11.addConstraint(Sketcher.Constraint("DistanceY", 0, 3, -1, 1, Q("41 mm")))
pocket7 = body.newObject("PartDesign::Pocket", "Pocket006")
pocket7.Profile = sketch11
pocket7.Length = 3
pocket7.Reversed = True

# Sketch on YZ plane
sketch12 = body.newObject("Sketcher::SketchObject", "Sketch011")
sketch12.AttachmentSupport = (doc.getObject("YZ_Plane"), [""])
sketch12.MapMode = "FlatFace"
sketch12.AttachmentOffset = App.Placement(V(0, 0, 30), App.Rotation())
sketch12.addGeometry(Part.LineSegment(V(57, -4, 0), V(50, -4, 0)), False)
sketch12.addGeometry(Part.LineSegment(V(50, -4, 0), V(50, 4, 0)), False)
sketch12.addGeometry(Part.LineSegment(V(50, 4, 0), V(57, 4, 0)), False)
sketch12.addGeometry(Part.LineSegment(V(57, 4, 0), V(57, -4, 0)), False)
sketch12.addConstraint(Sketcher.Constraint("Coincident", 0, 2, 1, 1))
sketch12.addConstraint(Sketcher.Constraint("Coincident", 1, 2, 2, 1))
sketch12.addConstraint(Sketcher.Constraint("Coincident", 2, 2, 3, 1))
sketch12.addConstraint(Sketcher.Constraint("Coincident", 3, 2, 0, 1))
sketch12.addConstraint(Sketcher.Constraint("Horizontal", 0))
sketch12.addConstraint(Sketcher.Constraint("Vertical", 1))
sketch12.addConstraint(Sketcher.Constraint("Horizontal", 2))
sketch12.addConstraint(Sketcher.Constraint("Vertical", 3))
sketch12.addConstraint(Sketcher.Constraint("Equal", 2, 1))
sketch12.addConstraint(Sketcher.Constraint("DistanceX", 0, 2, 0, 1, Q("7 mm")))
sketch12.addConstraint(Sketcher.Constraint("DistanceY", 0, 2, -1, 1, Q("3.5 mm")))
sketch12.addConstraint(Sketcher.Constraint("DistanceX", -1, 1, 0, 2, Q("50 mm")))
pad5 = body.newObject("PartDesign::Pad", "Pad004")
pad5.Profile = sketch12
pad5.Length = 7
pad5.Reversed = True

# Sketch on XY plane
sketch13 = body.newObject("Sketcher::SketchObject", "Sketch012")
sketch13.AttachmentSupport = (doc.getObject("XY_Plane"), [""])
sketch13.MapMode = "FlatFace"
sketch13.AttachmentOffset = App.Placement(V(0, 0, -3.5), App.Rotation())
sketch13.addGeometry(Part.LineSegment(V(23, 50, 0), V(23, 57, 0)), False)
sketch13.addGeometry(Part.LineSegment(V(23, 57, 0), V(30, 50, 0)), False)
sketch13.addGeometry(Part.LineSegment(V(30, 50, 0), V(23, 50, 0)), False)
sketch13.addConstraint(Sketcher.Constraint("Coincident", 0, 2, 1, 1))
sketch13.addConstraint(Sketcher.Constraint("Coincident", 1, 2, 2, 1))
sketch13.addConstraint(Sketcher.Constraint("Coincident", 2, 2, 0, 1))
sketch13.addConstraint(Sketcher.Constraint("Vertical", 0))
sketch13.addConstraint(Sketcher.Constraint("Horizontal", 2))
sketch13.addConstraint(Sketcher.Constraint("Equal", 2, 0))
sketch13.addConstraint(Sketcher.Constraint("DistanceX", 2, 2, 2, 1, Q("7 mm")))
sketch13.addConstraint(Sketcher.Constraint("DistanceX", -1, 1, 0, 2, Q("23 mm")))
sketch13.addConstraint(Sketcher.Constraint("DistanceY", -1, 1, 0, 2, Q("57 mm")))
pocket8 = body.newObject("PartDesign::Pocket", "Pocket007")
pocket8.Profile = sketch13
pocket8.Length = 7
pocket8.Reversed = True

# Sketch on XZ plane
sketch14 = body.newObject("Sketcher::SketchObject", "Sketch013")
sketch14.AttachmentSupport = (doc.getObject("XZ_Plane"), [""])
sketch14.MapMode = "FlatFace"
sketch14.AttachmentOffset = App.Placement(V(0, 0, -57), App.Rotation())
sketch14.addGeometry(Part.Circle(V(28, 0, 0), V(0, 0, 1), 1.5), False)
sketch14.addConstraint(Sketcher.Constraint("PointOnObject", 0, 3, -1))
sketch14.addConstraint(Sketcher.Constraint("Diameter", 0, Q("3 mm")))
sketch14.addConstraint(Sketcher.Constraint("DistanceX", -1, 1, 0, 3, Q("28 mm")))
pocket9 = body.newObject("PartDesign::Pocket", "Pocket008")
pocket9.Profile = sketch14
pocket9.Length = 3
pocket9.Reversed = True

# Sketch on XY plane
sketch15 = body.newObject("Sketcher::SketchObject", "Sketch014")
sketch15.AttachmentSupport = (doc.getObject("XY_Plane"), [""])
sketch15.MapMode = "FlatFace"
sketch15.AttachmentOffset = App.Placement(V(0, 0, 43), App.Rotation())
sketch15.addGeometry(Part.LineSegment(V(4, 57, 0), V(4, 50, 0)), False)
sketch15.addGeometry(Part.LineSegment(V(4, 50, 0), V(-4, 50, 0)), False)
sketch15.addGeometry(Part.LineSegment(V(-4, 50, 0), V(-4, 57, 0)), False)
sketch15.addGeometry(Part.LineSegment(V(-4, 57, 0), V(4, 57, 0)), False)
sketch15.addConstraint(Sketcher.Constraint("Coincident", 0, 2, 1, 1))
sketch15.addConstraint(Sketcher.Constraint("Coincident", 1, 2, 2, 1))
sketch15.addConstraint(Sketcher.Constraint("Coincident", 2, 2, 3, 1))
sketch15.addConstraint(Sketcher.Constraint("Coincident", 3, 2, 0, 1))
sketch15.addConstraint(Sketcher.Constraint("Vertical", 0))
sketch15.addConstraint(Sketcher.Constraint("Horizontal", 1))
sketch15.addConstraint(Sketcher.Constraint("Vertical", 2))
sketch15.addConstraint(Sketcher.Constraint("Horizontal", 3))
sketch15.addConstraint(Sketcher.Constraint("Equal", 3, 0))
sketch15.addConstraint(Sketcher.Constraint("DistanceX", 1, 2, 1, 1, Q("7 mm")))
sketch15.addConstraint(Sketcher.Constraint("DistanceX", -1, 1, 0, 2, Q("3.5 mm")))
sketch15.addConstraint(Sketcher.Constraint("DistanceY", -1, 1, 0, 2, Q("50 mm")))
pad6 = body.newObject("PartDesign::Pad", "Pad005")
pad6.Profile = sketch15
pad6.Length = 7
pad6.Reversed = True

# Sketch on YZ plane
sketch16 = body.newObject("Sketcher::SketchObject", "Sketch015")
sketch16.AttachmentSupport = (doc.getObject("YZ_Plane"), [""])
sketch16.MapMode = "FlatFace"
sketch16.AttachmentOffset = App.Placement(V(0, 0, 3.5), App.Rotation())
sketch16.addGeometry(Part.LineSegment(V(50, 36, 0), V(57, 36, 0)), False)
sketch16.addGeometry(Part.LineSegment(V(57, 36, 0), V(50, 43, 0)), False)
sketch16.addGeometry(Part.LineSegment(V(50, 43, 0), V(50, 36, 0)), False)
sketch16.addConstraint(Sketcher.Constraint("Coincident", 0, 2, 1, 1))
sketch16.addConstraint(Sketcher.Constraint("Coincident", 1, 2, 2, 1))
sketch16.addConstraint(Sketcher.Constraint("Coincident", 2, 2, 0, 1))
sketch16.addConstraint(Sketcher.Constraint("Horizontal", 0))
sketch16.addConstraint(Sketcher.Constraint("Vertical", 2))
sketch16.addConstraint(Sketcher.Constraint("Equal", 0, 2))
sketch16.addConstraint(Sketcher.Constraint("DistanceX", 0, 1, 0, 2, Q("7 mm")))
sketch16.addConstraint(Sketcher.Constraint("DistanceX", -1, 1, 0, 2, Q("57 mm")))
sketch16.addConstraint(Sketcher.Constraint("DistanceY", -1, 1, 0, 2, Q("36 mm")))
pocket10 = body.newObject("PartDesign::Pocket", "Pocket009")
pocket10.Profile = sketch16
pocket10.Length = 7

# Sketch on XZ plane
sketch17 = body.newObject("Sketcher::SketchObject", "Sketch016")
sketch17.AttachmentSupport = (doc.getObject("XZ_Plane"), [""])
sketch17.MapMode = "FlatFace"
sketch17.AttachmentOffset = App.Placement(V(0, 0, -57), App.Rotation())
sketch17.addGeometry(Part.Circle(V(0, 41, 0), V(0, 0, 1), 1.5), False)
sketch17.addConstraint(Sketcher.Constraint("PointOnObject", 0, 3, -2))
sketch17.addConstraint(Sketcher.Constraint("Diameter", 0, Q("3 mm")))
sketch17.addConstraint(Sketcher.Constraint("DistanceY", -1, 1, 0, 3, Q("41 mm")))
pocket11 = body.newObject("PartDesign::Pocket", "Pocket010")
pocket11.Profile = sketch17
pocket11.Length = 3
pocket11.Reversed = True

# Sketch on XY plane
sketch18 = body.newObject("Sketcher::SketchObject", "Sketch017")
sketch18.AttachmentSupport = (doc.getObject("XY_Plane"), [""])
sketch18.MapMode = "FlatFace"
sketch18.AttachmentOffset = App.Placement(V(0, 0, 45), App.Rotation())
sketch18.addGeometry(Part.Circle(V(0, 32, 0), V(0, 0, 1), 1.6), False)
sketch18.addGeometry(Part.LineSegment(V(-2.5, 9, 0), V(2.5, 9, 0)), False)
sketch18.addGeometry(Part.ArcOfCircle(Part.Circle(V(2.5, 9.5, 0), V(0, 0, 1), 0.5), math.radians(-90), math.radians(0)), False)
sketch18.addGeometry(Part.LineSegment(V(3, 9.5, 0), V(3, 14.5, 0)), False)
sketch18.addGeometry(Part.ArcOfCircle(Part.Circle(V(2.5, 14.5, 0), V(0, 0, 1), 0.5), math.radians(0), math.radians(90)), False)
sketch18.addGeometry(Part.LineSegment(V(2.5, 15, 0), V(-2.5, 15, 0)), False)
sketch18.addGeometry(Part.ArcOfCircle(Part.Circle(V(-2.5, 14.5, 0), V(0, 0, 1), 0.5), math.radians(90), math.radians(180)), False)
sketch18.addGeometry(Part.LineSegment(V(-3, 14.5, 0), V(-3, 9.5, 0)), False)
sketch18.addGeometry(Part.ArcOfCircle(Part.Circle(V(-2.5, 9.5, 0), V(0, 0, 1), 0.5), math.radians(180), math.radians(270)), False)
sketch18.addConstraint(Sketcher.Constraint("Tangent", 1, 2, 2, 1))
sketch18.addConstraint(Sketcher.Constraint("Tangent", 2, 2, 3, 1))
sketch18.addConstraint(Sketcher.Constraint("Tangent", 3, 2, 4, 1))
sketch18.addConstraint(Sketcher.Constraint("Tangent", 4, 2, 5, 1))
sketch18.addConstraint(Sketcher.Constraint("Tangent", 5, 2, 6, 1))
sketch18.addConstraint(Sketcher.Constraint("Tangent", 6, 2, 7, 1))
sketch18.addConstraint(Sketcher.Constraint("Tangent", 7, 2, 8, 1))
sketch18.addConstraint(Sketcher.Constraint("Tangent", 8, 2, 1, 1))
sketch18.addConstraint(Sketcher.Constraint("Horizontal", 1))
sketch18.addConstraint(Sketcher.Constraint("Vertical", 3))
sketch18.addConstraint(Sketcher.Constraint("Horizontal", 5))
sketch18.addConstraint(Sketcher.Constraint("Vertical", 7))
sketch18.addConstraint(Sketcher.Constraint("Equal", 2, 4))
sketch18.addConstraint(Sketcher.Constraint("Equal", 4, 6))
sketch18.addConstraint(Sketcher.Constraint("Equal", 6, 8))
sketch18.addConstraint(Sketcher.Constraint("PointOnObject", 0, 3, -2))
sketch18.addConstraint(Sketcher.Constraint("Equal", 5, 3))
sketch18.addConstraint(Sketcher.Constraint("Diameter", 0, Q("3.3 mm")))
sketch18.addConstraint(Sketcher.Constraint("Radius", 2, Q("0.5 mm")))
sketch18.addConstraint(Sketcher.Constraint("DistanceX", 1, 1, 1, 2, Q("5 mm")))
sketch18.addConstraint(Sketcher.Constraint("DistanceY", -1, 1, 0, 3, Q("32 mm")))
sketch18.addConstraint(Sketcher.Constraint("DistanceY", -1, 1, 1, 2, Q("9 mm")))
sketch18.addConstraint(Sketcher.Constraint("DistanceX", -1, 1, 2, 2, Q("3 mm")))
pocket12 = body.newObject("PartDesign::Pocket", "Pocket011")
pocket12.Profile = sketch18
pocket12.Length = 10

doc.recompute()
